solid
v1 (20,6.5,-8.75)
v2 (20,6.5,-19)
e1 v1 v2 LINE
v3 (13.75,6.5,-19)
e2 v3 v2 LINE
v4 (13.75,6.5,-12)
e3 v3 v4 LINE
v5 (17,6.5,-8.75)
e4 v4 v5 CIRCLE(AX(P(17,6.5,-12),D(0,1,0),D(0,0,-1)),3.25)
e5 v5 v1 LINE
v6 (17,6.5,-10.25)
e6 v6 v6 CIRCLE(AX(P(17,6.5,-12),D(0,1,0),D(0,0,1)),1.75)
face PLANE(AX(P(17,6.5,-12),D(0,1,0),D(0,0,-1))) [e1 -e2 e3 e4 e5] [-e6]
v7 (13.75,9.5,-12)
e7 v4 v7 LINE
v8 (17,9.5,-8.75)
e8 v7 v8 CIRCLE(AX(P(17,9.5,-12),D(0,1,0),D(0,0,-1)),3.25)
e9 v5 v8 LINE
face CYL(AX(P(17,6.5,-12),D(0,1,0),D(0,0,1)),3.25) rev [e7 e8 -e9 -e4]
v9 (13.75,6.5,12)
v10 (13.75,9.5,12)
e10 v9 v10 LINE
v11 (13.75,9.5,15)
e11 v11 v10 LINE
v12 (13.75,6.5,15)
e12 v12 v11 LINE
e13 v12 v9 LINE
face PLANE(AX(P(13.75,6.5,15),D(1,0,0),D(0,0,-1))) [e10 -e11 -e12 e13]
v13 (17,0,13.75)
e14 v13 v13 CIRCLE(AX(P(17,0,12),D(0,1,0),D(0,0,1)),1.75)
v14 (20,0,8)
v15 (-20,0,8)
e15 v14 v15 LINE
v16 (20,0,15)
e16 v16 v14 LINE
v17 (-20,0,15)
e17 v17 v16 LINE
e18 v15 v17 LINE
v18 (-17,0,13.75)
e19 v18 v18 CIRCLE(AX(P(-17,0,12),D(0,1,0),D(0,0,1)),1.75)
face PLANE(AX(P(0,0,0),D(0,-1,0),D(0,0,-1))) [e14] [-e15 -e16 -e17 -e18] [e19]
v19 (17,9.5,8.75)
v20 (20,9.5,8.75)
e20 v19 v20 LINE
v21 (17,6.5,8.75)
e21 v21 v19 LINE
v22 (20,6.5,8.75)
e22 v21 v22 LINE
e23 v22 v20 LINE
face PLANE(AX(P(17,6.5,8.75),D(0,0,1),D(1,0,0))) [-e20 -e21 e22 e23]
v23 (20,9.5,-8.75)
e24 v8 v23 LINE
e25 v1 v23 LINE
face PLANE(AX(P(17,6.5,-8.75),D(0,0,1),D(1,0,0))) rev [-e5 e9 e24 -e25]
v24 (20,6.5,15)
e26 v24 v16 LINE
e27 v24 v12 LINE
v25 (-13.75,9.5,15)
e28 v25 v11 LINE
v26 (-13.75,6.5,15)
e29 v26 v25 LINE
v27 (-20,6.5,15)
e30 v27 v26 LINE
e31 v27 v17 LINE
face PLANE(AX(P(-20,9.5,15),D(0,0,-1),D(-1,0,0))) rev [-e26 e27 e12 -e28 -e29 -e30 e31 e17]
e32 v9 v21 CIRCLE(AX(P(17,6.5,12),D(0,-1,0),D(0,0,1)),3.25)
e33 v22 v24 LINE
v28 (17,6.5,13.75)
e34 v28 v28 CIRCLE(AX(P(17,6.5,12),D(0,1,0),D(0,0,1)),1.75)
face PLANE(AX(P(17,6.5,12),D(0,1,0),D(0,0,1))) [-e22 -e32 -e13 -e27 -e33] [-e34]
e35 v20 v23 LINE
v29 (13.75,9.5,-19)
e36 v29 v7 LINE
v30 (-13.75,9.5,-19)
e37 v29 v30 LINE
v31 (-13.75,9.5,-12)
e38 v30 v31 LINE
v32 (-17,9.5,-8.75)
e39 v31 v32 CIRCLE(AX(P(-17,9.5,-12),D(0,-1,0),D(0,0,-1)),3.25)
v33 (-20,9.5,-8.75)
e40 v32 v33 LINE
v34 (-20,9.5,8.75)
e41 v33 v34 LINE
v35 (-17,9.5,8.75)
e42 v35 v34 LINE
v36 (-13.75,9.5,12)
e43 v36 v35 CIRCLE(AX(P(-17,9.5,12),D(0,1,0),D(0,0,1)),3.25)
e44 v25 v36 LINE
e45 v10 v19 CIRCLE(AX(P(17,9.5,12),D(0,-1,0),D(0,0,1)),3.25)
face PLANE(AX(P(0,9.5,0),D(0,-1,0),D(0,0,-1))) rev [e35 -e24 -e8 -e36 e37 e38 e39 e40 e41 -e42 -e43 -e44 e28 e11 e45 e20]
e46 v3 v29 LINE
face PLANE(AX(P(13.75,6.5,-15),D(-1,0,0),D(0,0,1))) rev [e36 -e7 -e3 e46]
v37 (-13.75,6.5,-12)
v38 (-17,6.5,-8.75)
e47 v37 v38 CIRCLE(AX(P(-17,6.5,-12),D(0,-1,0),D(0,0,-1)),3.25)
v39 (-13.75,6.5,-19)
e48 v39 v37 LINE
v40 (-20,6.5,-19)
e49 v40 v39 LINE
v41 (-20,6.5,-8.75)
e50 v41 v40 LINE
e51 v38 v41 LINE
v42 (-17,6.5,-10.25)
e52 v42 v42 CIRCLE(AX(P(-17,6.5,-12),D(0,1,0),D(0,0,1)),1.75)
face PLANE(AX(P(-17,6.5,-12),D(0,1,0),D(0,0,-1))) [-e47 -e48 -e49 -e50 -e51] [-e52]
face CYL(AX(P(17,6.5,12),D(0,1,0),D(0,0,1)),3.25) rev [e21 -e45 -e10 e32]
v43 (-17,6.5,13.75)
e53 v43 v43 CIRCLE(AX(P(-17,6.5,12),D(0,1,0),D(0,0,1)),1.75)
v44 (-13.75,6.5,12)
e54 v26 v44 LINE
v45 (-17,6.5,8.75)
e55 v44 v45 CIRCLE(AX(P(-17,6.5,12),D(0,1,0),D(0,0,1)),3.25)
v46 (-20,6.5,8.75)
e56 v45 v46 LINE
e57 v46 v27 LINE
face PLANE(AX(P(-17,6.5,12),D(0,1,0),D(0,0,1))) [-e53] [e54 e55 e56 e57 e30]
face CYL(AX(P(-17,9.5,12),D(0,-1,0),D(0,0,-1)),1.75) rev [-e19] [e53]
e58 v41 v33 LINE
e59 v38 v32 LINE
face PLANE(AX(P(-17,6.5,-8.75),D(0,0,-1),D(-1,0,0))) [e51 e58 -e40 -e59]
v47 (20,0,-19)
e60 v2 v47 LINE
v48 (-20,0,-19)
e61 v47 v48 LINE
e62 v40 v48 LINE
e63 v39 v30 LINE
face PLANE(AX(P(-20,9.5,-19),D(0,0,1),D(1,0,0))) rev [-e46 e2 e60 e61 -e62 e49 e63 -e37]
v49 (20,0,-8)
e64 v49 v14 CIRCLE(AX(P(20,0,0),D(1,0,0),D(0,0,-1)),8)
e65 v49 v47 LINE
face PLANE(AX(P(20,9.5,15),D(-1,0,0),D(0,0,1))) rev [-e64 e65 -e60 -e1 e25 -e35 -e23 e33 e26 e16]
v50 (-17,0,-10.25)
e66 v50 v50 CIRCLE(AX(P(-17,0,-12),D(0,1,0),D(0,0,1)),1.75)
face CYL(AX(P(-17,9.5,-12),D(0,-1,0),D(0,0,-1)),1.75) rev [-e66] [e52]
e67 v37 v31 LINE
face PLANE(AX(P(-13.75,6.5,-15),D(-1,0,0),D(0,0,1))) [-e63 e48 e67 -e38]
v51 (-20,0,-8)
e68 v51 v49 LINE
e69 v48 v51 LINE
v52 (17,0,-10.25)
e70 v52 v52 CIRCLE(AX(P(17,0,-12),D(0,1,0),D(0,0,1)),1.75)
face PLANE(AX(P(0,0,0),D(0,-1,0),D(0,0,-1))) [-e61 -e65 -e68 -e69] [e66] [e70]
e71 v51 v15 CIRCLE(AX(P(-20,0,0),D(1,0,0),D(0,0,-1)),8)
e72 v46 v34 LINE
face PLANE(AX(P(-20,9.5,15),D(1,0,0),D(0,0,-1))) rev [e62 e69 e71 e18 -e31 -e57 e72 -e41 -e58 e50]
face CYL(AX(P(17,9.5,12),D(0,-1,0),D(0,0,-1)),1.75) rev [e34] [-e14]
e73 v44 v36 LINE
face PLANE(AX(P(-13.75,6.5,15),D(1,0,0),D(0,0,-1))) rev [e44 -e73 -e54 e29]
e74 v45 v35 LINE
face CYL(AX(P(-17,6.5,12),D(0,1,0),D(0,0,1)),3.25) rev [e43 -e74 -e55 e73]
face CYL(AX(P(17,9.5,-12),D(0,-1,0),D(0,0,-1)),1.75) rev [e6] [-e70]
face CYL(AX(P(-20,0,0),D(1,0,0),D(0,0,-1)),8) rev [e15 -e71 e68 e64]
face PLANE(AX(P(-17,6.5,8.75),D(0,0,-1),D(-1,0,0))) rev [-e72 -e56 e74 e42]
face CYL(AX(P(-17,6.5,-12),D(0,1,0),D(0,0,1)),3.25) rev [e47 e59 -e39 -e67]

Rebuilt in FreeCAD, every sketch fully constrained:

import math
import FreeCAD as App
import Part
import Sketcher
from FreeCAD import Vector


def add_polygon(sketch, points):
    """Adds a closed chain of lines whose ends are joined by coincident constraints."""
    first, n = sketch.GeometryCount, len(points)
    for a, b in zip(points, points[1:] + points[:1]):
        sketch.addGeometry(Part.LineSegment(App.Vector(*a, 0), App.Vector(*b, 0)), False)
    for i in range(n):
        sketch.addConstraint(Sketcher.Constraint("Coincident", first + i, 2, first + (i + 1) % n, 1))

doc = App.newDocument("Part")
body = doc.addObject("PartDesign::Body", "Body")

sketch1 = body.newObject("Sketcher::SketchObject", "Sketch")
sketch1.AttachmentSupport = (doc.getObject("XZ_Plane"), [""])
sketch1.MapMode = "FlatFace"
add_polygon(sketch1, [(-20, -19), (-20, 15), (20, 15), (20, -19)])
sketch1.addGeometry(Part.Circle(Vector(-17, 12, 0), Vector(0, 0, 1), 1.8), False)
sketch1.addGeometry(Part.Circle(Vector(17, 12, 0), Vector(0, 0, 1), 1.8), False)
sketch1.addGeometry(Part.Circle(Vector(-17, -12, 0), Vector(0, 0, 1), 1.8), False)
sketch1.addGeometry(Part.Circle(Vector(17, -12, 0), Vector(0, 0, 1), 1.8), False)
sketch1.addConstraint(Sketcher.Constraint("Vertical", 0))
sketch1.addConstraint(Sketcher.Constraint("Horizontal", 1))
sketch1.addConstraint(Sketcher.Constraint("Vertical", 2))
sketch1.addConstraint(Sketcher.Constraint("Horizontal", 3))
sketch1.addConstraint(Sketcher.Constraint("Equal", 4, 5))
sketch1.addConstraint(Sketcher.Constraint("Equal", 5, 6))
sketch1.addConstraint(Sketcher.Constraint("Equal", 6, 7))
sketch1.addConstraint(Sketcher.Constraint("Symmetric", 5, 3, 6, 3, -1, 1))
sketch1.addConstraint(Sketcher.Constraint("Symmetric", 4, 3, 7, 3, -1, 1))
sketch1.addConstraint(Sketcher.Constraint("Symmetric", 4, 3, 5, 3, -2))
sketch1.addConstraint(Sketcher.Constraint("Diameter", 4, 3.5))
sketch1.addConstraint(Sketcher.Constraint("DistanceX", 1, 1, 1, 2, 40.0))
sketch1.addConstraint(Sketcher.Constraint("DistanceY", 0, 1, 0, 2, 34.0))
sketch1.addConstraint(Sketcher.Constraint("DistanceX", 4, 3, -1, 1, 17.0))
sketch1.addConstraint(Sketcher.Constraint("DistanceY", -1, 1, 4, 3, 12.0))
sketch1.addConstraint(Sketcher.Constraint("DistanceX", 0, 2, -1, 1, 20.0))
sketch1.addConstraint(Sketcher.Constraint("DistanceY", -1, 1, 0, 2, 15.0))
pad1 = body.newObject("PartDesign::Pad", "Pad")
pad1.Profile = sketch1
pad1.Length = 9.5
pad1.Reversed = True

sketch2 = body.newObject("Sketcher::SketchObject", "Sketch001")
sketch2.AttachmentSupport = (doc.getObject("YZ_Plane"), [""])
sketch2.MapMode = "FlatFace"
sketch2.AttachmentOffset = App.Placement(Vector(0, 0, 20), App.Rotation())
sketch2.addGeometry(Part.Circle(Vector(0, 0, 0), Vector(0, 0, 1), 8), False)
sketch2.addConstraint(Sketcher.Constraint("Coincident", 0, 3, -1, 1))
sketch2.addConstraint(Sketcher.Constraint("Diameter", 0, 16.0))
pocket1 = body.newObject("PartDesign::Pocket", "Pocket")
pocket1.Profile = sketch2
pocket1.Type = "ThroughAll"

sketch3 = body.newObject("Sketcher::SketchObject", "Sketch002")
sketch3.AttachmentSupport = (doc.getObject("XZ_Plane"), [""])
sketch3.MapMode = "FlatFace"
sketch3.AttachmentOffset = App.Placement(Vector(0, 0, -9.5), App.Rotation())
sketch3.addGeometry(Part.LineSegment(Vector(-17, 8.8, 0), Vector(-20, 8.8, 0)), False)
sketch3.addGeometry(Part.LineSegment(Vector(-20, 8.8, 0), Vector(-20, 15, 0)), False)
sketch3.addGeometry(Part.LineSegment(Vector(-20, 15, 0), Vector(-13.8, 15, 0)), False)
sketch3.addGeometry(Part.LineSegment(Vector(-13.8, 15, 0), Vector(-13.8, 12, 0)), False)
sketch3.addGeometry(Part.ArcOfCircle(Part.Circle(Vector(-17, 12, 0), Vector(0, 0, 1), 3.2), math.radians(-90), math.radians(0)), False)
sketch3.addConstraint(Sketcher.Constraint("Coincident", 0, 2, 1, 1))
sketch3.addConstraint(Sketcher.Constraint("Coincident", 1, 2, 2, 1))
sketch3.addConstraint(Sketcher.Constraint("Coincident", 2, 2, 3, 1))
sketch3.addConstraint(Sketcher.Constraint("Tangent", 3, 2, 4, 2))
sketch3.addConstraint(Sketcher.Constraint("Tangent", 4, 1, 0, 1))
sketch3.addConstraint(Sketcher.Constraint("Horizontal", 0))
sketch3.addConstraint(Sketcher.Constraint("Vertical", 1))
sketch3.addConstraint(Sketcher.Constraint("Horizontal", 2))
sketch3.addConstraint(Sketcher.Constraint("Vertical", 3))
sketch3.addConstraint(Sketcher.Constraint("Equal", 2, 1))
sketch3.addConstraint(Sketcher.Constraint("DistanceX", 0, 2, 0, 1, 3.0))
sketch3.addConstraint(Sketcher.Constraint("Radius", 4, 3.25))
sketch3.addConstraint(Sketcher.Constraint("DistanceX", 4, 3, -1, 1, 17.0))
sketch3.addConstraint(Sketcher.Constraint("DistanceY", -1, 1, 4, 3, 12.0))
pocket2 = body.newObject("PartDesign::Pocket", "Pocket001")
pocket2.Profile = sketch3
pocket2.Length = 3
pocket2.Reversed = True
doc.recompute()

mirrored = body.newObject("PartDesign::Mirrored", "Mirrored")
mirrored.Originals = [pocket2]
mirrored.MirrorPlane = (doc.getObject("YZ_Plane"), [""])
body.Tip = mirrored
doc.recompute()

mirrored2 = body.newObject("PartDesign::Mirrored", "Mirrored001")
mirrored2.Originals = [pocket2]
mirrored2.MirrorPlane = (doc.getObject("XY_Plane"), [""])
body.Tip = mirrored2

sketch4 = body.newObject("Sketcher::SketchObject", "Sketch003")
sketch4.AttachmentSupport = (doc.getObject("XZ_Plane"), [""])
sketch4.MapMode = "FlatFace"
sketch4.AttachmentOffset = App.Placement(Vector(0, 0, -9.5), App.Rotation())
sketch4.addGeometry(Part.LineSegment(Vector(17, -8.8, 0), Vector(20, -8.8, 0)), False)
sketch4.addGeometry(Part.LineSegment(Vector(20, -8.8, 0), Vector(20, -15, 0)), False)
sketch4.addGeometry(Part.LineSegment(Vector(20, -15, 0), Vector(13.8, -15, 0)), False)
sketch4.addGeometry(Part.LineSegment(Vector(13.8, -15, 0), Vector(13.8, -12, 0)), False)
sketch4.addGeometry(Part.ArcOfCircle(Part.Circle(Vector(17, -12, 0), Vector(0, 0, 1), 3.2), math.radians(90), math.radians(180)), False)
sketch4.addConstraint(Sketcher.Constraint("Coincident", 0, 2, 1, 1))
sketch4.addConstraint(Sketcher.Constraint("Coincident", 1, 2, 2, 1))
sketch4.addConstraint(Sketcher.Constraint("Coincident", 2, 2, 3, 1))
sketch4.addConstraint(Sketcher.Constraint("Tangent", 3, 2, 4, 2))
sketch4.addConstraint(Sketcher.Constraint("Tangent", 4, 1, 0, 1))
sketch4.addConstraint(Sketcher.Constraint("Horizontal", 0))
sketch4.addConstraint(Sketcher.Constraint("Vertical", 1))
sketch4.addConstraint(Sketcher.Constraint("Horizontal", 2))
sketch4.addConstraint(Sketcher.Constraint("Vertical", 3))
sketch4.addConstraint(Sketcher.Constraint("Equal", 2, 1))
sketch4.addConstraint(Sketcher.Constraint("DistanceX", 0, 1, 0, 2, 3.0))
sketch4.addConstraint(Sketcher.Constraint("Radius", 4, 3.25))
sketch4.addConstraint(Sketcher.Constraint("DistanceX", -1, 1, 4, 3, 17.0))
sketch4.addConstraint(Sketcher.Constraint("DistanceY", 4, 3, -1, 1, 12.0))
pocket3 = body.newObject("PartDesign::Pocket", "Pocket002")
pocket3.Profile = sketch4
pocket3.Length = 3
pocket3.Reversed = True

sketch5 = body.newObject("Sketcher::SketchObject", "Sketch004")
sketch5.AttachmentSupport = (doc.getObject("XZ_Plane"), [""])
sketch5.MapMode = "FlatFace"
sketch5.AttachmentOffset = App.Placement(Vector(0, 0, -9.5), App.Rotation())
add_polygon(sketch5, [(-20, -19), (-20, -15), (-13.8, -15), (-13.8, -19)])
add_polygon(sketch5, [(13.8, -19), (13.8, -15), (20, -15), (20, -19)])
sketch5.addConstraint(Sketcher.Constraint("Vertical", 0))
sketch5.addConstraint(Sketcher.Constraint("Horizontal", 1))
sketch5.addConstraint(Sketcher.Constraint("Vertical", 2))
sketch5.addConstraint(Sketcher.Constraint("Horizontal", 3))
sketch5.addConstraint(Sketcher.Constraint("Vertical", 4))
sketch5.addConstraint(Sketcher.Constraint("Horizontal", 5))
sketch5.addConstraint(Sketcher.Constraint("Vertical", 6))
sketch5.addConstraint(Sketcher.Constraint("Horizontal", 7))
sketch5.addConstraint(Sketcher.Constraint("Symmetric", 1, 2, 4, 2, -2))
sketch5.addConstraint(Sketcher.Constraint("Symmetric", 3, 2, 6, 2, -2))
sketch5.addConstraint(Sketcher.Constraint("DistanceY", 0, 1, 0, 2, 4.0))
sketch5.addConstraint(Sketcher.Constraint("DistanceX", 0, 2, -1, 1, 20.0))
sketch5.addConstraint(Sketcher.Constraint("DistanceY", 0, 2, -1, 1, 15.0))
sketch5.addConstraint(Sketcher.Constraint("DistanceX", 1, 1, 1, 2, 6.25))
pocket4 = body.newObject("PartDesign::Pocket", "Pocket003")
pocket4.Profile = sketch5
pocket4.Length = 3
pocket4.Reversed = True

doc.recompute()
